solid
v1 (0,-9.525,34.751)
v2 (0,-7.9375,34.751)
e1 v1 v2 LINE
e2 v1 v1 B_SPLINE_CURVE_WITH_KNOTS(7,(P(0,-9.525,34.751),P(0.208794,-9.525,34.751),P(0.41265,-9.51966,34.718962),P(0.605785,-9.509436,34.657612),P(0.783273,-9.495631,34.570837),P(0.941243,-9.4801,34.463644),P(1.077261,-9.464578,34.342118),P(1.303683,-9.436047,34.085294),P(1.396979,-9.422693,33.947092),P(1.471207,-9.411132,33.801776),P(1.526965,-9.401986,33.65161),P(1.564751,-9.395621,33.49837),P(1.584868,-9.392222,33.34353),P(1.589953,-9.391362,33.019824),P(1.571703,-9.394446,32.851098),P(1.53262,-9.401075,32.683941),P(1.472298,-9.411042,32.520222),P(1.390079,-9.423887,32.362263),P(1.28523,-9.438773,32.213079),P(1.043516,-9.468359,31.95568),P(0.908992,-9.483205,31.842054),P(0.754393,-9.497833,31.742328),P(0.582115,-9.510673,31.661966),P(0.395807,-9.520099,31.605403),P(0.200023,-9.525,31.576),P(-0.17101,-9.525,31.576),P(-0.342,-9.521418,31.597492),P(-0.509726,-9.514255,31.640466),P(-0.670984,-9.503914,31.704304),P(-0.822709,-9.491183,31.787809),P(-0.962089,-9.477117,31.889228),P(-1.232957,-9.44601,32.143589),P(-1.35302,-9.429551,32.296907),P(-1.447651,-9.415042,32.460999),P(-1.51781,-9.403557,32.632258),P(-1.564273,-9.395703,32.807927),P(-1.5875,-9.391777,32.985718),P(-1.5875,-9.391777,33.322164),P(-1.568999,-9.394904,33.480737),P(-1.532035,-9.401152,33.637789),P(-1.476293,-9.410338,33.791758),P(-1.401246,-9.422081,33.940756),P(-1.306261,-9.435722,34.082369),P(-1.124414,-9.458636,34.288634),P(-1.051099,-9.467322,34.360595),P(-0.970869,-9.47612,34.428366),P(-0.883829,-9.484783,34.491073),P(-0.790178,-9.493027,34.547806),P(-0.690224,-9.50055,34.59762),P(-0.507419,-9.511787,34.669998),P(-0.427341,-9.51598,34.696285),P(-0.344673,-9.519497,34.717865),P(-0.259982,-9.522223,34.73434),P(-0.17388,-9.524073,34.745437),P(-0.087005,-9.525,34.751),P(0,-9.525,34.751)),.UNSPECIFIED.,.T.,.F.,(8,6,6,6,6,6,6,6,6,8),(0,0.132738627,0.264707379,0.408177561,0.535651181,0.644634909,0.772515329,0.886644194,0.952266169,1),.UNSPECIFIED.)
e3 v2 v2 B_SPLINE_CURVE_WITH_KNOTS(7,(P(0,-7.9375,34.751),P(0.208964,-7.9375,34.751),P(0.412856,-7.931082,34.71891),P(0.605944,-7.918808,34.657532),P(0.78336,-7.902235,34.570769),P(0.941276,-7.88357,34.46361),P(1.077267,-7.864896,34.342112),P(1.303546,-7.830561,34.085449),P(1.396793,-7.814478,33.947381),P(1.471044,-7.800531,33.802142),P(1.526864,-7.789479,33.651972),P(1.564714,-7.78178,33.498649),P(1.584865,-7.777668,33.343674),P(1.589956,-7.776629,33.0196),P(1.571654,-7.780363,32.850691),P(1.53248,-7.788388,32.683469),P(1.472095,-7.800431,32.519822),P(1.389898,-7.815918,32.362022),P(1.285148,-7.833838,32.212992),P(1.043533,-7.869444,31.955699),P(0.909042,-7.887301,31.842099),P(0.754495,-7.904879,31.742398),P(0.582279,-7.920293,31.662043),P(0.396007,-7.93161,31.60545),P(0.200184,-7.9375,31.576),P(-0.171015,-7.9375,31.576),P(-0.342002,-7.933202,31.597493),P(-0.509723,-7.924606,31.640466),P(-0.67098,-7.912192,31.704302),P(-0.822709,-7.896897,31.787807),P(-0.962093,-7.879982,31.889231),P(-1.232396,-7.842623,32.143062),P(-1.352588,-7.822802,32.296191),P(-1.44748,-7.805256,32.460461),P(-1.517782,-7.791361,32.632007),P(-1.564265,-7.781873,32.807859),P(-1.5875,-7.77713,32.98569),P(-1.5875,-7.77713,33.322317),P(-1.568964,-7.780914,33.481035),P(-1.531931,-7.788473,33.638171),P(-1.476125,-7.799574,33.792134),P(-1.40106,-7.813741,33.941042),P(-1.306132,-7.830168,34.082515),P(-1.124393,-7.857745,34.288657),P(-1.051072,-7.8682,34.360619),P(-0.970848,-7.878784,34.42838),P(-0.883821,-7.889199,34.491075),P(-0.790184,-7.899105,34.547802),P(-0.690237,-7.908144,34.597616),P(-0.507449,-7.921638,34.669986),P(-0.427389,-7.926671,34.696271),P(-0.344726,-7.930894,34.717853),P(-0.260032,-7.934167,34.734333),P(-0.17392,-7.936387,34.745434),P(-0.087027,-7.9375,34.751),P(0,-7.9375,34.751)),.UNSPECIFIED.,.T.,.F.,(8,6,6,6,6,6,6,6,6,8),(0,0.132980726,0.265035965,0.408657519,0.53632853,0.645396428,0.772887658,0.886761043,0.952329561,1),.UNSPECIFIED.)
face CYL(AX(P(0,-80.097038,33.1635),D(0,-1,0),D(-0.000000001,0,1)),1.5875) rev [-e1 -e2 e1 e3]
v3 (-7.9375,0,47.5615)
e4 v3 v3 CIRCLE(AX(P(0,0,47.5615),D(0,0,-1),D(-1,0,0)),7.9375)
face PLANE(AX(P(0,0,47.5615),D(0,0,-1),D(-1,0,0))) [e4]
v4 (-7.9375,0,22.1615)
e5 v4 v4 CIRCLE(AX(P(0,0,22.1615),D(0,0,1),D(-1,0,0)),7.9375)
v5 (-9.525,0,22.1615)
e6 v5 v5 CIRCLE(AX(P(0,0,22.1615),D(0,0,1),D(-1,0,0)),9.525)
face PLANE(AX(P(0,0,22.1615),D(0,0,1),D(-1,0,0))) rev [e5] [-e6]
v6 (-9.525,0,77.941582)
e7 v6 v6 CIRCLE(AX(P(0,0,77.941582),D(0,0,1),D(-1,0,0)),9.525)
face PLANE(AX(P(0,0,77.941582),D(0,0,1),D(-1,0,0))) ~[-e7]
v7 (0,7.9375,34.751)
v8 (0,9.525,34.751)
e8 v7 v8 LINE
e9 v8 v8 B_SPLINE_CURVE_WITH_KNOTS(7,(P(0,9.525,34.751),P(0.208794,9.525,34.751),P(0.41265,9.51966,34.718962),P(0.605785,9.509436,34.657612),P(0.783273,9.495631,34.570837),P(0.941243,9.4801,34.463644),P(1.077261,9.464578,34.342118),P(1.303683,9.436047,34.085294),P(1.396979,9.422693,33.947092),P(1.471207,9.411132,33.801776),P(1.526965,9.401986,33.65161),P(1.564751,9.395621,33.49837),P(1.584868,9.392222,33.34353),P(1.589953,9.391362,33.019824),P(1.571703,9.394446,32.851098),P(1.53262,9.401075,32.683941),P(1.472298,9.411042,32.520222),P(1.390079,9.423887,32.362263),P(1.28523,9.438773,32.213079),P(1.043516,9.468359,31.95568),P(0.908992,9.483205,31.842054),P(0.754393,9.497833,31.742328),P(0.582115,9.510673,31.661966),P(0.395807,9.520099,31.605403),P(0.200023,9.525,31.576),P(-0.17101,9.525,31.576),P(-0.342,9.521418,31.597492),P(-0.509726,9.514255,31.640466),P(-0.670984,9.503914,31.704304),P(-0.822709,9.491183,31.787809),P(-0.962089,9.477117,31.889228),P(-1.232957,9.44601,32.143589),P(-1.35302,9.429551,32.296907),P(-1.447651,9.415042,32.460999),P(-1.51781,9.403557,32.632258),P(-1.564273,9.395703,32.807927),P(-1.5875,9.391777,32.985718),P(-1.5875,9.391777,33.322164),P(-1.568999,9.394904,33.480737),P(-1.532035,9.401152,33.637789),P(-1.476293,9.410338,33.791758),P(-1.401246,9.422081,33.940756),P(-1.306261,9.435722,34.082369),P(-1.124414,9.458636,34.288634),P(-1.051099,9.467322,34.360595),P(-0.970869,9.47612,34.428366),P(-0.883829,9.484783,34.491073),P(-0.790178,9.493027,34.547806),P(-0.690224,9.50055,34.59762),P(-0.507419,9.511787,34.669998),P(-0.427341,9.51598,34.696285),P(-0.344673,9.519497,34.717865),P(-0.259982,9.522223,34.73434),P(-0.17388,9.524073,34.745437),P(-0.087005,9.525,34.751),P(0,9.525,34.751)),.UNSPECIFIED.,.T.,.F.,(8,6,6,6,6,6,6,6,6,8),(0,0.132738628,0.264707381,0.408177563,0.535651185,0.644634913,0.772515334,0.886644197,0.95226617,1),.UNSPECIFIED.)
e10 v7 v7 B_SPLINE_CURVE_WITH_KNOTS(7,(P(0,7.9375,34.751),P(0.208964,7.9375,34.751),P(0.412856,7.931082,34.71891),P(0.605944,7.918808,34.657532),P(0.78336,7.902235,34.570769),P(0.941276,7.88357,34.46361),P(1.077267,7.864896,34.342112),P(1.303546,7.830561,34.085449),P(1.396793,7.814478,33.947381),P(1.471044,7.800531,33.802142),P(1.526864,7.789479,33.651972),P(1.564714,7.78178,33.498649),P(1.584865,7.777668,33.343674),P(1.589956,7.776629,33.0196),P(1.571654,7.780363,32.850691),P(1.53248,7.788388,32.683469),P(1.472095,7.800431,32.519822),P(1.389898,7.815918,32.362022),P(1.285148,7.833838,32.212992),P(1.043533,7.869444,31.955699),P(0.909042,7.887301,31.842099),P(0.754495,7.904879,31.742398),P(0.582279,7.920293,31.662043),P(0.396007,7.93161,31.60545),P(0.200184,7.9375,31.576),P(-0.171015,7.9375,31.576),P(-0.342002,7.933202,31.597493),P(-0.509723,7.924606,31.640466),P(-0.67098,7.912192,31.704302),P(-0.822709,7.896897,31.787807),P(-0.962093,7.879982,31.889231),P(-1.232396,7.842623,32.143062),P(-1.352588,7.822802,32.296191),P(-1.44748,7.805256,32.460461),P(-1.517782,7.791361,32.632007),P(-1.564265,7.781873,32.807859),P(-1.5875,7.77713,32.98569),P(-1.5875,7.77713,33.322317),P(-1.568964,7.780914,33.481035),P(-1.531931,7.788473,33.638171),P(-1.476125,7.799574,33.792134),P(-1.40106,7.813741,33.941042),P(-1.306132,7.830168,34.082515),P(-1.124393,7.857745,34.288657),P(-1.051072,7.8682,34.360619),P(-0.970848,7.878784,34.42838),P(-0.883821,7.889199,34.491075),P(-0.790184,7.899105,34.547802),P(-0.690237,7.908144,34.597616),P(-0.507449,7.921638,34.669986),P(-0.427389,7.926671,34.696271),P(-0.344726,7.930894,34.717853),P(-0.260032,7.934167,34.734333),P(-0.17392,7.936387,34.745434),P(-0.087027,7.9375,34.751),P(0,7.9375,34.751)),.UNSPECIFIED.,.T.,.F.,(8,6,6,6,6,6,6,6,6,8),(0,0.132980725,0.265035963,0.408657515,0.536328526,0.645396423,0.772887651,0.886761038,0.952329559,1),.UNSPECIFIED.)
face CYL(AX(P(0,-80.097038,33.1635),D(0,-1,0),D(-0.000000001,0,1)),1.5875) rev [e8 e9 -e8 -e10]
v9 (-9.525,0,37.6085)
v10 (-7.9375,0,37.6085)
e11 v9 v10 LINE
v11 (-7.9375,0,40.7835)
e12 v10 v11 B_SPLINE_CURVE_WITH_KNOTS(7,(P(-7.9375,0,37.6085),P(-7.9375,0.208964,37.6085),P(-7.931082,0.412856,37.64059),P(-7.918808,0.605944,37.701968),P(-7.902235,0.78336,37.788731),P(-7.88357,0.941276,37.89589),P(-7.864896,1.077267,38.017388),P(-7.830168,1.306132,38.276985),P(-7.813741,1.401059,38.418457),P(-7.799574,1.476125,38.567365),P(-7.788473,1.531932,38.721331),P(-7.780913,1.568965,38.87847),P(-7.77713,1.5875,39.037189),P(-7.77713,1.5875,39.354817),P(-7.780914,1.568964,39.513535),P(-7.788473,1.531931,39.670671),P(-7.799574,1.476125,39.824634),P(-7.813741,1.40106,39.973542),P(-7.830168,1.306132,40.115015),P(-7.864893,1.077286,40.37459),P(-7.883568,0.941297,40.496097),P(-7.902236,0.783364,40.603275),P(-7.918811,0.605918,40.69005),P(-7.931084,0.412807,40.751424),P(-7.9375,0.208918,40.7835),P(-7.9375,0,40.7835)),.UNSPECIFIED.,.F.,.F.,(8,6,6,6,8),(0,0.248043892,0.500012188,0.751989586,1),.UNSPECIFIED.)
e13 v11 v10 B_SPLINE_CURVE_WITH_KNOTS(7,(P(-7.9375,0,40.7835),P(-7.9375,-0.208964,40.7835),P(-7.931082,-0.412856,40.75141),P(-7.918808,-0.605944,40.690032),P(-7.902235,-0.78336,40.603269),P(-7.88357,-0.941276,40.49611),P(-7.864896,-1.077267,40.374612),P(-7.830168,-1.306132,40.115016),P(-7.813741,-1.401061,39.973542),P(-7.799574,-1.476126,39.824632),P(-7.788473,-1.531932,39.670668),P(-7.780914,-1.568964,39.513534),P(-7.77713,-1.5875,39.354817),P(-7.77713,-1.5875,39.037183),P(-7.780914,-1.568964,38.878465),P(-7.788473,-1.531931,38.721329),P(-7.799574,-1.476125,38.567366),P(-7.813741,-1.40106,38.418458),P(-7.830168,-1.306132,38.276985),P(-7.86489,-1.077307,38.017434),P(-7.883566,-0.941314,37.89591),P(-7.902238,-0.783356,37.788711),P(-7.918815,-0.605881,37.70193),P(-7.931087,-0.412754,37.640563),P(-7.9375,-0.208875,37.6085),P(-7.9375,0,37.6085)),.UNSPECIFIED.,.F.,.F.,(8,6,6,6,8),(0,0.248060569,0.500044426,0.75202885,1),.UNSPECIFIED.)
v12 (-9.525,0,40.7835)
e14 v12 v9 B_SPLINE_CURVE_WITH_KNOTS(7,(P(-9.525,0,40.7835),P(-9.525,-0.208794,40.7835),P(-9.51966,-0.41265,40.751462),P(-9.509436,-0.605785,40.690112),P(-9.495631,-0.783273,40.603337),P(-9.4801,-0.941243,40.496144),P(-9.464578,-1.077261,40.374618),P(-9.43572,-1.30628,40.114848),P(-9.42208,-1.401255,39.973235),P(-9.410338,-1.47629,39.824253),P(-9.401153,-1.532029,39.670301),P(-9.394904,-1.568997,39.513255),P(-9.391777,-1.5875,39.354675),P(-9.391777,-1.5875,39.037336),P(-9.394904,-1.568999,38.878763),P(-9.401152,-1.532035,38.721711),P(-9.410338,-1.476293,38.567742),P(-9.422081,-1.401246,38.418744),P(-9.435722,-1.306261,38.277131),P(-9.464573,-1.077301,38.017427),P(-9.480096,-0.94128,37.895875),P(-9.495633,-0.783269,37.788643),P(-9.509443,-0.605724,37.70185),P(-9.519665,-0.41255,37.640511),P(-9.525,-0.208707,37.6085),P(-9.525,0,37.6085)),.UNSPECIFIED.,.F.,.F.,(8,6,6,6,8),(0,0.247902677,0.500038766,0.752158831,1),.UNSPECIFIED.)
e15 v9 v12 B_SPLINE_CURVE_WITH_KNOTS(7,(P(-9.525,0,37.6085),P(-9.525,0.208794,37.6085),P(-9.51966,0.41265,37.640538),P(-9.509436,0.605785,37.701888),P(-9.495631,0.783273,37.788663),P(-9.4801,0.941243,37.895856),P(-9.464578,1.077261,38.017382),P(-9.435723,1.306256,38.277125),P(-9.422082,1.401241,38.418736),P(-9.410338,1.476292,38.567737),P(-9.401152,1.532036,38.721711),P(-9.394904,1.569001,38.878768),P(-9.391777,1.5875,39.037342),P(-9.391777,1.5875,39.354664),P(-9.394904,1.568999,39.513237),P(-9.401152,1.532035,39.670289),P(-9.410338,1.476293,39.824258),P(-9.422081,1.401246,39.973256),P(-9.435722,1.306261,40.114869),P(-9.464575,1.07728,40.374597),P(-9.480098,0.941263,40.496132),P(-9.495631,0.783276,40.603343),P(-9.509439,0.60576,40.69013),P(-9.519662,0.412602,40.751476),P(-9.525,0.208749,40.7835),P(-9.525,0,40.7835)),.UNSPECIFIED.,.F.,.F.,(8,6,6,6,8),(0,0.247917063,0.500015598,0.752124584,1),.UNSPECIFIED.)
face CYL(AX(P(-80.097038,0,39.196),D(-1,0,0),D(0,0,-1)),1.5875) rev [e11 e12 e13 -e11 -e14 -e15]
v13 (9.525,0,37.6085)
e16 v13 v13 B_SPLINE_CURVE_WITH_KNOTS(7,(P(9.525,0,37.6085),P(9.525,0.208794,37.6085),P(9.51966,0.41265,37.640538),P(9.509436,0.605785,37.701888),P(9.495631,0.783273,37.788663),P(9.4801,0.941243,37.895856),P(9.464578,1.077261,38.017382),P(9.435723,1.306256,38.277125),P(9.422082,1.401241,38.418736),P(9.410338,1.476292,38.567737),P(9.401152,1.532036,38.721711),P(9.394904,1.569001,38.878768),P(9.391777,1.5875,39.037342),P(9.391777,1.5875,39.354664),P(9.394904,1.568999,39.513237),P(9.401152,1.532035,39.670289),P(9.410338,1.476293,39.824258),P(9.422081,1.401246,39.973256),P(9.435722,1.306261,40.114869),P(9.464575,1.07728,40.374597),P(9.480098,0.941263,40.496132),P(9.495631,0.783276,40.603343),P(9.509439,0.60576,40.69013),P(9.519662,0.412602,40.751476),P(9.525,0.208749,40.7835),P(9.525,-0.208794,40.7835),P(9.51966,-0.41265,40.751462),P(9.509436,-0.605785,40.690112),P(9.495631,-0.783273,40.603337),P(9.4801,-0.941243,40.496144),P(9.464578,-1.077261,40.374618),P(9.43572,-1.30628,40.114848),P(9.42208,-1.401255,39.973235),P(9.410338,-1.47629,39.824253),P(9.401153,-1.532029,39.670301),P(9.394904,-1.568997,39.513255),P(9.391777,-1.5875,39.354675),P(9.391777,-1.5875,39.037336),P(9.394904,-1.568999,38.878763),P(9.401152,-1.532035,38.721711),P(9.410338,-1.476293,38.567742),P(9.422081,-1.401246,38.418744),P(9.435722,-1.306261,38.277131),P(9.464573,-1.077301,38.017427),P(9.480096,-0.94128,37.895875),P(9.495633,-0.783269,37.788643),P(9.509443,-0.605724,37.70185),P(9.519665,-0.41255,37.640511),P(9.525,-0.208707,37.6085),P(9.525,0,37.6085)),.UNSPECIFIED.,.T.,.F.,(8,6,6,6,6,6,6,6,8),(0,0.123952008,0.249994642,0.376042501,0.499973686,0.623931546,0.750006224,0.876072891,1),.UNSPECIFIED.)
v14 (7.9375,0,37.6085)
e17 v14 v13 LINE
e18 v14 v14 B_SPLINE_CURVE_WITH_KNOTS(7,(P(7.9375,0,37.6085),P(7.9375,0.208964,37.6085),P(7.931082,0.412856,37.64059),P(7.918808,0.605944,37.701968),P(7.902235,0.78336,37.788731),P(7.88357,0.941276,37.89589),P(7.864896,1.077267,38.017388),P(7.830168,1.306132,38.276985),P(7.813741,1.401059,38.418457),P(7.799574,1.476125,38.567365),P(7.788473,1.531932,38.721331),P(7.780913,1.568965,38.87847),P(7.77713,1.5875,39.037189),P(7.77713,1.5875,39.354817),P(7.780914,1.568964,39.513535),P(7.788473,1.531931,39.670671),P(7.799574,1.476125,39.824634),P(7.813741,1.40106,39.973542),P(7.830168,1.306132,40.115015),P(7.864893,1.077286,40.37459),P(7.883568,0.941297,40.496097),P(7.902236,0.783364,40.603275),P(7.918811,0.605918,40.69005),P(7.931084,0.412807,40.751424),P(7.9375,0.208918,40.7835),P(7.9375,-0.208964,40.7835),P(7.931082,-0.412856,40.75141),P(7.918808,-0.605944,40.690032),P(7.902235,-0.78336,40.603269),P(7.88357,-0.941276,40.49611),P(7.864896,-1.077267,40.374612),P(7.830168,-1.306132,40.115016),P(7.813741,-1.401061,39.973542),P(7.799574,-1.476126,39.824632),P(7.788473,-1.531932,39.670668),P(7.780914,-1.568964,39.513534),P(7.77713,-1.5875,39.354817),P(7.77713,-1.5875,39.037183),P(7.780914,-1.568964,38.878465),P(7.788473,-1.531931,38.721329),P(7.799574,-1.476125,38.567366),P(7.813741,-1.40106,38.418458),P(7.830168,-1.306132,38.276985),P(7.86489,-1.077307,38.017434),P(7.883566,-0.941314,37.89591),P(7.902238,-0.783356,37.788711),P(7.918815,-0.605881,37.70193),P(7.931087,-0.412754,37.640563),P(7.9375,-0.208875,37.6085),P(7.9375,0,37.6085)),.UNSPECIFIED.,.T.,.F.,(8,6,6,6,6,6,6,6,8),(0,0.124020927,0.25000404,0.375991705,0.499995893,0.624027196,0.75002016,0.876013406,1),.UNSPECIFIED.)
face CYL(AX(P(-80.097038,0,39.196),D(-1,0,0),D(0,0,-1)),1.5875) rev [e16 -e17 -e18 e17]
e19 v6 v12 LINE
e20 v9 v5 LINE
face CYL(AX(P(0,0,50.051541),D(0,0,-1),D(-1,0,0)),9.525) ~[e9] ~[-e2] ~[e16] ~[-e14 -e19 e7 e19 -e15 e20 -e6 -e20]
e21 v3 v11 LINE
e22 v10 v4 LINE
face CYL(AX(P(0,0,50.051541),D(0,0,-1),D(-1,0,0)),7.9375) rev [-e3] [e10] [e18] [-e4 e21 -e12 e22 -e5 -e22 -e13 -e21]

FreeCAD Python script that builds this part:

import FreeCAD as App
import Part
import Sketcher

V = App.Vector
Q = App.Units.Quantity


def add_polygon(sketch, points):
    """Adds a closed chain of lines whose ends are joined by coincident constraints."""
    first, n = sketch.GeometryCount, len(points)
    for a, b in zip(points, points[1:] + points[:1]):
        sketch.addGeometry(Part.LineSegment(App.Vector(*a, 0), App.Vector(*b, 0)), False)
    for i in range(n):
        sketch.addConstraint(Sketcher.Constraint("Coincident", first + i, 2, first + (i + 1) % n, 1))

doc = App.newDocument("Part")
body = doc.addObject("PartDesign::Body", "Body")

sketch1 = body.newObject("Sketcher::SketchObject", "Sketch")
sketch1.AttachmentSupport = (doc.getObject("XZ_Plane"), [""])
sketch1.MapMode = "FlatFace"
add_polygon(sketch1, [(7.9, 22.2), (7.9, 77.9), (9.5, 77.9), (9.5, 22.2)])
sketch1.addConstraint(Sketcher.Constraint("Vertical", 0))
sketch1.addConstraint(Sketcher.Constraint("Horizontal", 1))
sketch1.addConstraint(Sketcher.Constraint("Vertical", 2))
sketch1.addConstraint(Sketcher.Constraint("Horizontal", 3))
sketch1.addConstraint(Sketcher.Constraint("DistanceX", 1, 1, 1, 2, Q("0.0625 in")))
sketch1.addConstraint(Sketcher.Constraint("DistanceX", -1, 1, 0, 2, Q("0.3125 in")))
sketch1.addConstraint(Sketcher.Constraint("DistanceY", -1, 1, 2, 2, Q("0.8725 in")))
sketch1.addConstraint(Sketcher.Constraint("DistanceY", 0, 1, 0, 2, 55.780082))
revolution = body.newObject("PartDesign::Revolution", "Revolution")
revolution.Profile = sketch1
revolution.ReferenceAxis = (sketch1, ["V_Axis"])
revolution.Angle = 360

sketch2 = body.newObject("Sketcher::SketchObject", "Sketch001")
sketch2.AttachmentSupport = (doc.getObject("YZ_Plane"), [""])
sketch2.MapMode = "FlatFace"
sketch2.addGeometry(Part.Circle(V(0, 39.2, 0), V(0, 0, 1), 1.6), False)
sketch2.addConstraint(Sketcher.Constraint("PointOnObject", 0, 3, -2))
sketch2.addConstraint(Sketcher.Constraint("Diameter", 0, Q("0.125 in")))
sketch2.addConstraint(Sketcher.Constraint("DistanceY", -1, 1, 0, 3, 39.196))
pocket1 = body.newObject("PartDesign::Pocket", "Pocket")
pocket1.Profile = sketch2
pocket1.Type = "ThroughAll"
pocket1.Midplane = True

sketch3 = body.newObject("Sketcher::SketchObject", "Sketch002")
sketch3.AttachmentSupport = (doc.getObject("XZ_Plane"), [""])
sketch3.MapMode = "FlatFace"
sketch3.addGeometry(Part.Circle(V(0, 33.2, 0), V(0, 0, 1), 1.6), False)
sketch3.addConstraint(Sketcher.Constraint("PointOnObject", 0, 3, -2))
sketch3.addConstraint(Sketcher.Constraint("Diameter", 0, Q("0.125 in")))
sketch3.addConstraint(Sketcher.Constraint("DistanceY", -1, 1, 0, 3, 33.1635))
pocket2 = body.newObject("PartDesign::Pocket", "Pocket001")
pocket2.Profile = sketch3
pocket2.Type = "ThroughAll"
pocket2.Midplane = True

sketch4 = body.newObject("Sketcher::SketchObject", "Sketch003")
sketch4.AttachmentSupport = (doc.getObject("XY_Plane"), [""])
sketch4.MapMode = "FlatFace"
sketch4.AttachmentOffset = App.Placement(V(0, 0, 1.8725 * 25.4), App.Rotation())
sketch4.addGeometry(Part.Circle(V(0, 0, 0), V(0, 0, 1), 8), False)
sketch4.addConstraint(Sketcher.Constraint("Coincident", 0, 3, -1, 1))
sketch4.addConstraint(Sketcher.Constraint("Diameter", 0, Q("0.625 in")))
pad1 = body.newObject("PartDesign::Pad", "Pad")
pad1.Profile = sketch4
pad1.Length = 30.380082

doc.recompute()
